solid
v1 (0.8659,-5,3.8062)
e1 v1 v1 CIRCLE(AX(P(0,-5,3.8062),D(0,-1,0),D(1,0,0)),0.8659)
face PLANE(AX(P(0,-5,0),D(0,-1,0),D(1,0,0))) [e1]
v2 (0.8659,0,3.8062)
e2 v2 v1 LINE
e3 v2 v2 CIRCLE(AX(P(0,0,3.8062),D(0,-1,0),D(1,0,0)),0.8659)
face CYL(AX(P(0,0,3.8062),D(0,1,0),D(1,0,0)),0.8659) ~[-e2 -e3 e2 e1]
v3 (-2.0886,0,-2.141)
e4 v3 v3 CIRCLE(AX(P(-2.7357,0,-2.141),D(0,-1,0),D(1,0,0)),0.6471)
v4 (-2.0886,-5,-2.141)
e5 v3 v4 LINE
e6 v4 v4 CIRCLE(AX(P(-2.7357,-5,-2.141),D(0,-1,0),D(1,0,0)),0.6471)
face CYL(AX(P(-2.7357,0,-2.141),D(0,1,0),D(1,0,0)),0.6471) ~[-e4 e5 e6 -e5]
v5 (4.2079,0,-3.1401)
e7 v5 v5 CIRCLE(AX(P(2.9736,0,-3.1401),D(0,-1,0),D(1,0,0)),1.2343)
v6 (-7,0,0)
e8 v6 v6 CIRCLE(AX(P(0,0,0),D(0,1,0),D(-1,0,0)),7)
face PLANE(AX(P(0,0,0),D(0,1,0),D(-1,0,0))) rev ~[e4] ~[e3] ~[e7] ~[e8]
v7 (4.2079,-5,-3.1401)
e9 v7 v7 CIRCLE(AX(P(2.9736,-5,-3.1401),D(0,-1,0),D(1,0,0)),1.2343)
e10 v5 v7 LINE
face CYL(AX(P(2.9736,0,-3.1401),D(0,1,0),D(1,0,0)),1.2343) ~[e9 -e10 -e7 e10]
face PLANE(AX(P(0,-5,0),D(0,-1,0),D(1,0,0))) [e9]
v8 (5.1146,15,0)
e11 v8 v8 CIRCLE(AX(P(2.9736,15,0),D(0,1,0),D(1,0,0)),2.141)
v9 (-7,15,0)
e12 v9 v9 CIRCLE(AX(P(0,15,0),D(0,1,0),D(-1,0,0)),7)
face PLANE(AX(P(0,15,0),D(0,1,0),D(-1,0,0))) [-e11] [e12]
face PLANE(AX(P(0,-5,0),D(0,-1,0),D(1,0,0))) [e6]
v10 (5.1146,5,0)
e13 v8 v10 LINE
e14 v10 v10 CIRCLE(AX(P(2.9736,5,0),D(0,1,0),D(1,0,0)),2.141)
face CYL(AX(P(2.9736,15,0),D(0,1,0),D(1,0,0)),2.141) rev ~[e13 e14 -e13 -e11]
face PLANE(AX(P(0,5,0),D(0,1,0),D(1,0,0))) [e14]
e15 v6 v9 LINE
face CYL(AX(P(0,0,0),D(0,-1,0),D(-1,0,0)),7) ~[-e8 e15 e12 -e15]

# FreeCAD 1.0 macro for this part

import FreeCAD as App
import Part
import Sketcher

doc = App.newDocument("Part")
body = doc.addObject("PartDesign::Body", "Body")

sketch1 = body.newObject("Sketcher::SketchObject", "Sketch")
sketch1.AttachmentSupport = (doc.getObject("XZ_Plane"), [""])
sketch1.MapMode = "FlatFace"
sketch1.addGeometry(Part.Circle(App.Vector(0, 0, 0), App.Vector(0, 0, 1), 7), False)
sketch1.addConstraint(Sketcher.Constraint("Coincident", 0, 3, -1, 1))
sketch1.addConstraint(Sketcher.Constraint("Diameter", 0, 14.0))
pad1 = body.newObject("PartDesign::Pad", "Pad")
pad1.Profile = sketch1
pad1.Length = 15
pad1.Reversed = True

sketch2 = body.newObject("Sketcher::SketchObject", "Sketch001")
sketch2.AttachmentSupport = (doc.getObject("XZ_Plane"), [""])
sketch2.MapMode = "FlatFace"
sketch2.AttachmentOffset = App.Placement(App.Vector(0, 0, -15), App.Rotation())
sketch2.addGeometry(Part.Circle(App.Vector(3, 0, 0), App.Vector(0, 0, 1), 2.1), False)
sketch2.addConstraint(Sketcher.Constraint("PointOnObject", 0, 3, -1))
sketch2.addConstraint(Sketcher.Constraint("Diameter", 0, 4.282))
sketch2.addConstraint(Sketcher.Constraint("DistanceX", -1, 1, 0, 3, 2.9736))
pocket1 = body.newObject("PartDesign::Pocket", "Pocket")
pocket1.Profile = sketch2
pocket1.Length = 10
pocket1.Reversed = True

sketch3 = body.newObject("Sketcher::SketchObject", "Sketch002")
sketch3.AttachmentSupport = (doc.getObject("XZ_Plane"), [""])
sketch3.MapMode = "FlatFace"
sketch3.addGeometry(Part.Circle(App.Vector(0, 3.8, 0), App.Vector(0, 0, 1), 0.9), False)
sketch3.addGeometry(Part.Circle(App.Vector(3, -3.1, 0), App.Vector(0, 0, 1), 1.2), False)
sketch3.addGeometry(Part.Circle(App.Vector(-2.7, -2.1, 0), App.Vector(0, 0, 1), 0.6), False)
sketch3.addConstraint(Sketcher.Constraint("PointOnObject", 0, 3, -2))
sketch3.addConstraint(Sketcher.Constraint("Diameter", 0, 1.7318))
sketch3.addConstraint(Sketcher.Constraint("Diameter", 1, 2.4686))
sketch3.addConstraint(Sketcher.Constraint("Diameter", 2, 1.2942))
sketch3.addConstraint(Sketcher.Constraint("DistanceY", 1, 3, -1, 1, 3.14))
sketch3.addConstraint(Sketcher.Constraint("DistanceY", 2, 3, -1, 1, 2.141))
sketch3.addConstraint(Sketcher.Constraint("DistanceY", -1, 1, 0, 3, 3.8062))
sketch3.addConstraint(Sketcher.Constraint("DistanceX", -1, 1, 1, 3, 2.9736))
sketch3.addConstraint(Sketcher.Constraint("DistanceX", 2, 3, -1, 1, 2.7357))
pad2 = body.newObject("PartDesign::Pad", "Pad001")
pad2.Profile = sketch3
pad2.Length = 5

doc.recompute()
